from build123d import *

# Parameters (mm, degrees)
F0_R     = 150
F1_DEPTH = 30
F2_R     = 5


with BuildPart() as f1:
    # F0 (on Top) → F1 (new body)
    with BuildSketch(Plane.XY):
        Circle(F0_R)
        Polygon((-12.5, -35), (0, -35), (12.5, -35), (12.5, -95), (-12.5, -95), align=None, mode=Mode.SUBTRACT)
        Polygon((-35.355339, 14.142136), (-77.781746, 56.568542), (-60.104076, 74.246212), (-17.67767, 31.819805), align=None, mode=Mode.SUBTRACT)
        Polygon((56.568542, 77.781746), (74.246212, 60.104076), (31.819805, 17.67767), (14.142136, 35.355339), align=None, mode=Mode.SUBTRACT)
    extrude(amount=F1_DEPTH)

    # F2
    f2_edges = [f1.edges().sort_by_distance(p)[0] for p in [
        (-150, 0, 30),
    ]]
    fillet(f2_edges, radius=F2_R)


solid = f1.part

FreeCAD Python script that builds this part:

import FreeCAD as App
import Part
import Sketcher
Q = App.Units.Quantity


def edges_at(feature, points):
    """Names of the edges that pass closest to the given points."""
    edges = feature.Shape.Edges
    near = lambda p: min(range(len(edges)), key=lambda i: edges[i].distToShape(Part.Vertex(*p))[0])
    return sorted({f"Edge{near(p) + 1}" for p in points})


def add_polygon(sketch, points):
    """Adds a closed chain of lines whose ends are joined by coincident constraints."""
    first, n = sketch.GeometryCount, len(points)
    for a, b in zip(points, points[1:] + points[:1]):
        sketch.addGeometry(Part.LineSegment(App.Vector(*a, 0), App.Vector(*b, 0)), False)
    for i in range(n):
        sketch.addConstraint(Sketcher.Constraint("Coincident", first + i, 2, first + (i + 1) % n, 1))

doc = App.newDocument("Part")
body = doc.addObject("PartDesign::Body", "Body")

sketch1 = body.newObject("Sketcher::SketchObject", "Sketch")
sketch1.AttachmentSupport = (doc.getObject("XY_Plane"), [""])
sketch1.MapMode = "FlatFace"
sketch1.addGeometry(Part.Circle(App.Vector(0, 0, 0), App.Vector(0, 0, 1), 150), False)
add_polygon(sketch1, [(-12, -95), (-12, -35), (12, -35), (12, -95)])
add_polygon(sketch1, [(-18, 32), (-35, 14), (-78, 57), (-60, 74)])
add_polygon(sketch1, [(14, 35), (57, 78), (74, 60), (32, 18)])
sketch1.addConstraint(Sketcher.Constraint("Vertical", 1))
sketch1.addConstraint(Sketcher.Constraint("Horizontal", 2))
sketch1.addConstraint(Sketcher.Constraint("Vertical", 3))
sketch1.addConstraint(Sketcher.Constraint("Horizontal", 4))
sketch1.addConstraint(Sketcher.Constraint("Coincident", 0, 3, -1, 1))
sketch1.addConstraint(Sketcher.Constraint("Perpendicular", 5, 6))
sketch1.addConstraint(Sketcher.Constraint("Perpendicular", 6, 7))
sketch1.addConstraint(Sketcher.Constraint("Perpendicular", 7, 8))
sketch1.addConstraint(Sketcher.Constraint("Perpendicular", 8, 9))
sketch1.addConstraint(Sketcher.Constraint("Perpendicular", 9, 10))
sketch1.addConstraint(Sketcher.Constraint("Perpendicular", 10, 11))
sketch1.addConstraint(Sketcher.Constraint("Perpendicular", 11, 12))
sketch1.addConstraint(Sketcher.Constraint("Equal", 8, 9))
sketch1.addConstraint(Sketcher.Constraint("Equal", 7, 10))
sketch1.addConstraint(Sketcher.Constraint("Diameter", 0, 300.0))
sketch1.addConstraint(Sketcher.Constraint("DistanceX", 2, 1, 2, 2, 25.0))
sketch1.addConstraint(Sketcher.Constraint("DistanceY", 1, 1, 1, 2, 60.0))
sketch1.addConstraint(Sketcher.Constraint("Angle", 5, Q("-135 deg")))
sketch1.addConstraint(Sketcher.Constraint("Distance", 5, 24.999999))
sketch1.addConstraint(Sketcher.Constraint("Distance", 6, 59.999999))
sketch1.addConstraint(Sketcher.Constraint("DistanceY", 1, 2, -1, 1, 35.0))
sketch1.addConstraint(Sketcher.Constraint("DistanceX", 1, 2, -1, 1, 12.5))
sketch1.addConstraint(Sketcher.Constraint("DistanceX", 5, 2, -1, 1, 35.355339))
sketch1.addConstraint(Sketcher.Constraint("DistanceY", -1, 1, 7, 2, 74.246212))
sketch1.addConstraint(Sketcher.Constraint("DistanceX", -1, 1, 10, 2, 74.246212))
sketch1.addConstraint(Sketcher.Constraint("DistanceY", -1, 1, 11, 2, 17.67767))
pad1 = body.newObject("PartDesign::Pad", "Pad")
pad1.Profile = sketch1
pad1.Length = 30
doc.recompute()

fillet = body.newObject("PartDesign::Fillet", "Fillet")
fillet.Base = (pad1, edges_at(pad1, [(-150, 0, 30)]))
fillet.Radius = 5

doc.recompute()
